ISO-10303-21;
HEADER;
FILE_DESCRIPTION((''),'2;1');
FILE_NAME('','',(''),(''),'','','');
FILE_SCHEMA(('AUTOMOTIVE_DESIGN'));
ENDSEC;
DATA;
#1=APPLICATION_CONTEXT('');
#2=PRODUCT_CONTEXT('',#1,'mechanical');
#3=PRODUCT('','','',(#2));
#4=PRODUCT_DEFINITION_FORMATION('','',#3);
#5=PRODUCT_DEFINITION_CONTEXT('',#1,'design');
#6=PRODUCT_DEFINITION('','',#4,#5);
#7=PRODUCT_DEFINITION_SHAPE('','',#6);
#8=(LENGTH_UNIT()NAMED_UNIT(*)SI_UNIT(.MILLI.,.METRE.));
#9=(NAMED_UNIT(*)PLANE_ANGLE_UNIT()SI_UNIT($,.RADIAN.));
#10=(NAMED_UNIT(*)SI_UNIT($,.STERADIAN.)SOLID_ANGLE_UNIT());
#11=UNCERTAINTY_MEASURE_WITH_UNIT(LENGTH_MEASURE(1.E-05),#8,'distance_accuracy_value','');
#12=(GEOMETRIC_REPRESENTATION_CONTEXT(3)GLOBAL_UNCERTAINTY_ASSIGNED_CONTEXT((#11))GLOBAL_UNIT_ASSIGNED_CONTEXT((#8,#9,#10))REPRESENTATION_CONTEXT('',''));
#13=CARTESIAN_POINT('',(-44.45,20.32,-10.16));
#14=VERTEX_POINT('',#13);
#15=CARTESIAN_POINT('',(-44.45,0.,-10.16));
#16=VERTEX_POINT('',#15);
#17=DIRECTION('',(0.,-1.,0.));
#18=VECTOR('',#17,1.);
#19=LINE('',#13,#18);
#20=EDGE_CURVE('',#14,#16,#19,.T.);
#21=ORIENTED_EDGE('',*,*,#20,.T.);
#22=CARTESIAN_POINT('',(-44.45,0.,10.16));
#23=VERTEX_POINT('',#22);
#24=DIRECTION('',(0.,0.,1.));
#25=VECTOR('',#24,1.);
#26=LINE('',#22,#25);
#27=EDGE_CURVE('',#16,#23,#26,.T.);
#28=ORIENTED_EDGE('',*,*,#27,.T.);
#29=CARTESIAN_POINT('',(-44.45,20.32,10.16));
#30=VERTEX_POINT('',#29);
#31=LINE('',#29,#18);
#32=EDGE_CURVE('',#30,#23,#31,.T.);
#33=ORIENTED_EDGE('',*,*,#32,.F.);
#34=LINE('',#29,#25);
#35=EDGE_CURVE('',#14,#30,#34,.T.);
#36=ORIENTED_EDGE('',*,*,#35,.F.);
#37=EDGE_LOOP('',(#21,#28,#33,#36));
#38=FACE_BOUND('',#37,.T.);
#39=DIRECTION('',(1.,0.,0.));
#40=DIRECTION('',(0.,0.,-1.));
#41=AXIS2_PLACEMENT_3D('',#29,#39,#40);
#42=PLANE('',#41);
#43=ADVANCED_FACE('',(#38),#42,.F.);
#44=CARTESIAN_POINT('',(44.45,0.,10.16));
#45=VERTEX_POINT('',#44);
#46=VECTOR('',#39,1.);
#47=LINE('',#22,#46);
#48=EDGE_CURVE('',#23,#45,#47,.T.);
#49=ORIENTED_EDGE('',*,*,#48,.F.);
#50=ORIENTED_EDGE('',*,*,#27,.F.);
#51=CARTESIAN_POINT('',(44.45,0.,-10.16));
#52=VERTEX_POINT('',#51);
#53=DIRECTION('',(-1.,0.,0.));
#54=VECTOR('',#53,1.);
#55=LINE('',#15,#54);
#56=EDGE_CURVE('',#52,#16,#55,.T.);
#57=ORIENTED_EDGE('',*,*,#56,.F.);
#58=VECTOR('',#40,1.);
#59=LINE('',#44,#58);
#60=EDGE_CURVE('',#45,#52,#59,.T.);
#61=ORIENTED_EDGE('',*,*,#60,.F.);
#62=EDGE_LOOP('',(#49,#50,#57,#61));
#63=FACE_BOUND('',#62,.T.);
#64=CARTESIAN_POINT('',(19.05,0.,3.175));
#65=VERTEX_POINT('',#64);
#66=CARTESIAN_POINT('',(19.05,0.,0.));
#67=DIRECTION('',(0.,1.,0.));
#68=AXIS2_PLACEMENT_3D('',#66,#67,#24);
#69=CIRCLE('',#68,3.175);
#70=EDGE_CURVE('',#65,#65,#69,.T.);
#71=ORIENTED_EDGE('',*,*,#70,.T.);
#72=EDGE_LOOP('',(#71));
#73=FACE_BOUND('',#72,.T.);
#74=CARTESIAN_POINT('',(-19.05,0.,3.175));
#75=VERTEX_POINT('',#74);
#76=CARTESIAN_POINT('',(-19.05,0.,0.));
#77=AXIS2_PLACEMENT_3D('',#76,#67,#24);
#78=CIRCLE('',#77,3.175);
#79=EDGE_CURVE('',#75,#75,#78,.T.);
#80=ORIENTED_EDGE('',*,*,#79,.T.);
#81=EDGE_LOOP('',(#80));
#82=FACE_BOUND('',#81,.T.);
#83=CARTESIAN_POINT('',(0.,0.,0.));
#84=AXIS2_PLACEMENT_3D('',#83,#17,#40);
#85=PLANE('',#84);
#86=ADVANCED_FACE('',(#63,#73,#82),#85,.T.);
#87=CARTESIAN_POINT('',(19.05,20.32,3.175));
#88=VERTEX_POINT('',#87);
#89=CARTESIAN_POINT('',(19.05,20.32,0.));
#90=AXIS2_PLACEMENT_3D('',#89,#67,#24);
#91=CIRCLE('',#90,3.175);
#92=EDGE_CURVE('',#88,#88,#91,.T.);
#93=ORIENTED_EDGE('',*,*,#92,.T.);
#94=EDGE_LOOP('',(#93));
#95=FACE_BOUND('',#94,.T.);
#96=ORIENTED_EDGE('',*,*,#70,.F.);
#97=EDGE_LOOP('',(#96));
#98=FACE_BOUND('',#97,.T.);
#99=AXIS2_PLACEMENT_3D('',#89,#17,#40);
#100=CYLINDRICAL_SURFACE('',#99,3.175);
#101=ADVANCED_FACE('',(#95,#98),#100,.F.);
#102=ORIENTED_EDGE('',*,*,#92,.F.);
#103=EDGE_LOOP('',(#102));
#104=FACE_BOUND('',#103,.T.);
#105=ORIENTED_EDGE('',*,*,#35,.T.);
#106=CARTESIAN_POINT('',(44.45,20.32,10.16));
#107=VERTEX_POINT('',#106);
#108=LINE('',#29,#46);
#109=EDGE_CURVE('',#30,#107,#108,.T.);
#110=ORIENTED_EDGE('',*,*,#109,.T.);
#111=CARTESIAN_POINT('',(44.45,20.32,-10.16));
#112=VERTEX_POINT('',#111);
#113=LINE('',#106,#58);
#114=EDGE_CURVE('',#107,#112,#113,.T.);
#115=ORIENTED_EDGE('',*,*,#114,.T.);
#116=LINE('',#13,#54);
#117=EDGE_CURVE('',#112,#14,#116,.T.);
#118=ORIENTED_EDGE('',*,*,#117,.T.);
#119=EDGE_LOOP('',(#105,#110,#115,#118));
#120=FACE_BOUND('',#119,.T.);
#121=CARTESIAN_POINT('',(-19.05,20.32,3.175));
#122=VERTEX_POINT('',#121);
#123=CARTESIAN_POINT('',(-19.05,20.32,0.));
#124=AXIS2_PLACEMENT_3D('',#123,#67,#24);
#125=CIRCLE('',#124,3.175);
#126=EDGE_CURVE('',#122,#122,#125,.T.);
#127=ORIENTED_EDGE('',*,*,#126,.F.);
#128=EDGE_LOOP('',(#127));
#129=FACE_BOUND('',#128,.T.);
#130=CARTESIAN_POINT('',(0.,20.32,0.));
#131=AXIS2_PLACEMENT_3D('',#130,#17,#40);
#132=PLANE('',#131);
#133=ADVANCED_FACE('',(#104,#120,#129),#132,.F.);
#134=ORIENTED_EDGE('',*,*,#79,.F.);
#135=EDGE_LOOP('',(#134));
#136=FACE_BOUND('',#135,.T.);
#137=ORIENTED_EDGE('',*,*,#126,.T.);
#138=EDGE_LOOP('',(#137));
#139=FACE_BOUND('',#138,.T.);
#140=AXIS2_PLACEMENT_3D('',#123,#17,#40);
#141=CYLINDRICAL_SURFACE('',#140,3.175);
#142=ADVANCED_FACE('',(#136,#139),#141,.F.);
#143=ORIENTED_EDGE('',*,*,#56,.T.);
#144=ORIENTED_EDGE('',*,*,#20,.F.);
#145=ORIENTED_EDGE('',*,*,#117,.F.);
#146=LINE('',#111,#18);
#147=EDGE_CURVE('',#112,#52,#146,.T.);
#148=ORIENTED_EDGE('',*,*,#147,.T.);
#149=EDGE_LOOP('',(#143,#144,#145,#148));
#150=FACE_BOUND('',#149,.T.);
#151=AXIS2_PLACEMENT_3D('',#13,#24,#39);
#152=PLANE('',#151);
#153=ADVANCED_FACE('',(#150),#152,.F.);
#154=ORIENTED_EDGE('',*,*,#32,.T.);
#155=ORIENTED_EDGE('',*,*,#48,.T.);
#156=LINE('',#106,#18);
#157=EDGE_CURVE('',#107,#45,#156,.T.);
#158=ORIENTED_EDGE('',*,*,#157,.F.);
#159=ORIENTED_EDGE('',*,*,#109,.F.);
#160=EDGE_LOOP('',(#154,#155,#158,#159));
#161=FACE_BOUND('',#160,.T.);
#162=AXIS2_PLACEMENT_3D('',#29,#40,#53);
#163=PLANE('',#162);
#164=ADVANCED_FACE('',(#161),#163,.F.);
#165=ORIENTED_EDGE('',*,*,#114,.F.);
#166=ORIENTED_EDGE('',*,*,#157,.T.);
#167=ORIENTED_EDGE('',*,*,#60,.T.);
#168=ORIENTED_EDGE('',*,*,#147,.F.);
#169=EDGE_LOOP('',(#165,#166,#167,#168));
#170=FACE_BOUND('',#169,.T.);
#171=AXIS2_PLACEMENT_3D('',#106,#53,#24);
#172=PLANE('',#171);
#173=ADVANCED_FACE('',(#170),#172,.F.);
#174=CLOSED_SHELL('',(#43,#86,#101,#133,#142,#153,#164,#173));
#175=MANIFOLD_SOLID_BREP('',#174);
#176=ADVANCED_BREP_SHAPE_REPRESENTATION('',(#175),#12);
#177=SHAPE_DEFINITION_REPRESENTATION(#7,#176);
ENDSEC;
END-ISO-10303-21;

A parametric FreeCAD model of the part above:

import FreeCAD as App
import Part
import Sketcher
Q = App.Units.Quantity


def add_polygon(sketch, points):
    """Adds a closed chain of lines whose ends are joined by coincident constraints."""
    first, n = sketch.GeometryCount, len(points)
    for a, b in zip(points, points[1:] + points[:1]):
        sketch.addGeometry(Part.LineSegment(App.Vector(*a, 0), App.Vector(*b, 0)), False)
    for i in range(n):
        sketch.addConstraint(Sketcher.Constraint("Coincident", first + i, 2, first + (i + 1) % n, 1))

doc = App.newDocument("Part")
body = doc.addObject("PartDesign::Body", "Body")

# Sketch on XZ plane
sketch1 = body.newObject("Sketcher::SketchObject", "Sketch")
sketch1.AttachmentSupport = (doc.getObject("XZ_Plane"), [""])
sketch1.MapMode = "FlatFace"
add_polygon(sketch1, [(-44.5, -10.2), (-44.5, 10.2), (44.5, 10.2), (44.5, -10.2)])  # lines 0-3
sketch1.addGeometry(Part.Circle(App.Vector(-19.1, 0, 0), App.Vector(0, 0, 1), 3.2), False)  # 4
sketch1.addGeometry(Part.Circle(App.Vector(19.1, 0, 0), App.Vector(0, 0, 1), 3.2), False)  # 5
sketch1.addConstraint(Sketcher.Constraint("Vertical", 0))
sketch1.addConstraint(Sketcher.Constraint("Horizontal", 1))
sketch1.addConstraint(Sketcher.Constraint("Vertical", 2))
sketch1.addConstraint(Sketcher.Constraint("Horizontal", 3))
sketch1.addConstraint(Sketcher.Constraint("Equal", 4, 5))
sketch1.addConstraint(Sketcher.Constraint("Symmetric", 4, 3, 5, 3, -1, 1))
sketch1.addConstraint(Sketcher.Constraint("Symmetric", 0, 2, 2, 2, -1, 1))
sketch1.addConstraint(Sketcher.Constraint("PointOnObject", 4, 3, -1))
sketch1.addConstraint(Sketcher.Constraint("Diameter", 4, Q("0.25 in")))
sketch1.addConstraint(Sketcher.Constraint("DistanceX", 1, 1, 1, 2, Q("3.5 in")))
sketch1.addConstraint(Sketcher.Constraint("DistanceY", 0, 1, 0, 2, Q("0.8 in")))
sketch1.addConstraint(Sketcher.Constraint("DistanceX", 0, 2, 4, 3, Q("1 in")))
pad1 = body.newObject("PartDesign::Pad", "Pad")
pad1.Profile = sketch1
pad1.Length = Q("0.8 in")
pad1.Reversed = True

doc.recompute()
